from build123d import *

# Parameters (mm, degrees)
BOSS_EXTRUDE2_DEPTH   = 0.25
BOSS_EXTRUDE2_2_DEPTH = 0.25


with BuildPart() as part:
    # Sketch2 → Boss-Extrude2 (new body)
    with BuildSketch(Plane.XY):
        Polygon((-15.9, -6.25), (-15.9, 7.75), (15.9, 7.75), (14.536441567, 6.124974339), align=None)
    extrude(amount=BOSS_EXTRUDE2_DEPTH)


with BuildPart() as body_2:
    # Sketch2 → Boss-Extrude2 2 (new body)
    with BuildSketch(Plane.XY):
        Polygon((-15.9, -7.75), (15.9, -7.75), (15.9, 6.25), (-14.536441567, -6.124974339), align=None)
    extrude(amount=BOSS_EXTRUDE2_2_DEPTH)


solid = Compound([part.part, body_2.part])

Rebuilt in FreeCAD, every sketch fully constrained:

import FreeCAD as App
import Part
import Sketcher

V = App.Vector
Q = App.Units.Quantity


def add_polygon(sketch, points):
    """Adds a closed chain of lines whose ends are joined by coincident constraints."""
    first, n = sketch.GeometryCount, len(points)
    for a, b in zip(points, points[1:] + points[:1]):
        sketch.addGeometry(Part.LineSegment(App.Vector(*a, 0), App.Vector(*b, 0)), False)
    for i in range(n):
        sketch.addConstraint(Sketcher.Constraint("Coincident", first + i, 2, first + (i + 1) % n, 1))

doc = App.newDocument("Part")
body = doc.addObject("PartDesign::Body", "Body")

sketch1 = body.newObject("Sketcher::SketchObject", "Sketch")
sketch1.AttachmentSupport = (doc.getObject("XY_Plane"), [""])
sketch1.MapMode = "FlatFace"
add_polygon(sketch1, [(-15.9, 7.75), (-15.9, -6.25), (14.536442, 6.124974), (15.9, 7.75)])
sketch1.addConstraint([
    Sketcher.Constraint("Vertical", 0),
    Sketcher.Constraint("Horizontal", 3),
    Sketcher.Constraint("DistanceY", 0, 2, 0, 1, 14.0),
    Sketcher.Constraint("Angle", 2, Q("50 deg")),
    Sketcher.Constraint("DistanceX", 3, 2, 3, 1, 31.8),
    Sketcher.Constraint("DistanceX", 0, 2, -1, 1, 15.9),
    Sketcher.Constraint("DistanceY", 0, 2, -1, 1, 6.25),
    Sketcher.Constraint("Distance", 2, 2.12132),
])
pad1 = body.newObject("PartDesign::Pad", "Pad")
pad1.Profile = sketch1
pad1.Length = 0.25
body2 = doc.addObject("PartDesign::Body", "Body001")

sketch2 = body2.newObject("Sketcher::SketchObject", "Sketch001")
sketch2.AttachmentSupport = (doc.getObject("XY_Plane001"), [""])
sketch2.MapMode = "FlatFace"
add_polygon(sketch2, [(-15.9, -7.75), (15.9, -7.75), (15.9, 6.25), (-14.536442, -6.124974)])
sketch2.addConstraint([
    Sketcher.Constraint("Horizontal", 0),
    Sketcher.Constraint("Vertical", 1),
    Sketcher.Constraint("DistanceY", 1, 1, 1, 2, 14.0),
    Sketcher.Constraint("Angle", 3, Q("-130 deg")),
    Sketcher.Constraint("DistanceX", 0, 1, 0, 2, 31.8),
    Sketcher.Constraint("DistanceX", -1, 1, 0, 2, 15.9),
    Sketcher.Constraint("DistanceY", 0, 2, -1, 1, 7.75),
    Sketcher.Constraint("Distance", 3, 2.12132),
])
pad2 = body2.newObject("PartDesign::Pad", "Pad001")
pad2.Profile = sketch2
pad2.Length = 0.25

doc.recompute()
